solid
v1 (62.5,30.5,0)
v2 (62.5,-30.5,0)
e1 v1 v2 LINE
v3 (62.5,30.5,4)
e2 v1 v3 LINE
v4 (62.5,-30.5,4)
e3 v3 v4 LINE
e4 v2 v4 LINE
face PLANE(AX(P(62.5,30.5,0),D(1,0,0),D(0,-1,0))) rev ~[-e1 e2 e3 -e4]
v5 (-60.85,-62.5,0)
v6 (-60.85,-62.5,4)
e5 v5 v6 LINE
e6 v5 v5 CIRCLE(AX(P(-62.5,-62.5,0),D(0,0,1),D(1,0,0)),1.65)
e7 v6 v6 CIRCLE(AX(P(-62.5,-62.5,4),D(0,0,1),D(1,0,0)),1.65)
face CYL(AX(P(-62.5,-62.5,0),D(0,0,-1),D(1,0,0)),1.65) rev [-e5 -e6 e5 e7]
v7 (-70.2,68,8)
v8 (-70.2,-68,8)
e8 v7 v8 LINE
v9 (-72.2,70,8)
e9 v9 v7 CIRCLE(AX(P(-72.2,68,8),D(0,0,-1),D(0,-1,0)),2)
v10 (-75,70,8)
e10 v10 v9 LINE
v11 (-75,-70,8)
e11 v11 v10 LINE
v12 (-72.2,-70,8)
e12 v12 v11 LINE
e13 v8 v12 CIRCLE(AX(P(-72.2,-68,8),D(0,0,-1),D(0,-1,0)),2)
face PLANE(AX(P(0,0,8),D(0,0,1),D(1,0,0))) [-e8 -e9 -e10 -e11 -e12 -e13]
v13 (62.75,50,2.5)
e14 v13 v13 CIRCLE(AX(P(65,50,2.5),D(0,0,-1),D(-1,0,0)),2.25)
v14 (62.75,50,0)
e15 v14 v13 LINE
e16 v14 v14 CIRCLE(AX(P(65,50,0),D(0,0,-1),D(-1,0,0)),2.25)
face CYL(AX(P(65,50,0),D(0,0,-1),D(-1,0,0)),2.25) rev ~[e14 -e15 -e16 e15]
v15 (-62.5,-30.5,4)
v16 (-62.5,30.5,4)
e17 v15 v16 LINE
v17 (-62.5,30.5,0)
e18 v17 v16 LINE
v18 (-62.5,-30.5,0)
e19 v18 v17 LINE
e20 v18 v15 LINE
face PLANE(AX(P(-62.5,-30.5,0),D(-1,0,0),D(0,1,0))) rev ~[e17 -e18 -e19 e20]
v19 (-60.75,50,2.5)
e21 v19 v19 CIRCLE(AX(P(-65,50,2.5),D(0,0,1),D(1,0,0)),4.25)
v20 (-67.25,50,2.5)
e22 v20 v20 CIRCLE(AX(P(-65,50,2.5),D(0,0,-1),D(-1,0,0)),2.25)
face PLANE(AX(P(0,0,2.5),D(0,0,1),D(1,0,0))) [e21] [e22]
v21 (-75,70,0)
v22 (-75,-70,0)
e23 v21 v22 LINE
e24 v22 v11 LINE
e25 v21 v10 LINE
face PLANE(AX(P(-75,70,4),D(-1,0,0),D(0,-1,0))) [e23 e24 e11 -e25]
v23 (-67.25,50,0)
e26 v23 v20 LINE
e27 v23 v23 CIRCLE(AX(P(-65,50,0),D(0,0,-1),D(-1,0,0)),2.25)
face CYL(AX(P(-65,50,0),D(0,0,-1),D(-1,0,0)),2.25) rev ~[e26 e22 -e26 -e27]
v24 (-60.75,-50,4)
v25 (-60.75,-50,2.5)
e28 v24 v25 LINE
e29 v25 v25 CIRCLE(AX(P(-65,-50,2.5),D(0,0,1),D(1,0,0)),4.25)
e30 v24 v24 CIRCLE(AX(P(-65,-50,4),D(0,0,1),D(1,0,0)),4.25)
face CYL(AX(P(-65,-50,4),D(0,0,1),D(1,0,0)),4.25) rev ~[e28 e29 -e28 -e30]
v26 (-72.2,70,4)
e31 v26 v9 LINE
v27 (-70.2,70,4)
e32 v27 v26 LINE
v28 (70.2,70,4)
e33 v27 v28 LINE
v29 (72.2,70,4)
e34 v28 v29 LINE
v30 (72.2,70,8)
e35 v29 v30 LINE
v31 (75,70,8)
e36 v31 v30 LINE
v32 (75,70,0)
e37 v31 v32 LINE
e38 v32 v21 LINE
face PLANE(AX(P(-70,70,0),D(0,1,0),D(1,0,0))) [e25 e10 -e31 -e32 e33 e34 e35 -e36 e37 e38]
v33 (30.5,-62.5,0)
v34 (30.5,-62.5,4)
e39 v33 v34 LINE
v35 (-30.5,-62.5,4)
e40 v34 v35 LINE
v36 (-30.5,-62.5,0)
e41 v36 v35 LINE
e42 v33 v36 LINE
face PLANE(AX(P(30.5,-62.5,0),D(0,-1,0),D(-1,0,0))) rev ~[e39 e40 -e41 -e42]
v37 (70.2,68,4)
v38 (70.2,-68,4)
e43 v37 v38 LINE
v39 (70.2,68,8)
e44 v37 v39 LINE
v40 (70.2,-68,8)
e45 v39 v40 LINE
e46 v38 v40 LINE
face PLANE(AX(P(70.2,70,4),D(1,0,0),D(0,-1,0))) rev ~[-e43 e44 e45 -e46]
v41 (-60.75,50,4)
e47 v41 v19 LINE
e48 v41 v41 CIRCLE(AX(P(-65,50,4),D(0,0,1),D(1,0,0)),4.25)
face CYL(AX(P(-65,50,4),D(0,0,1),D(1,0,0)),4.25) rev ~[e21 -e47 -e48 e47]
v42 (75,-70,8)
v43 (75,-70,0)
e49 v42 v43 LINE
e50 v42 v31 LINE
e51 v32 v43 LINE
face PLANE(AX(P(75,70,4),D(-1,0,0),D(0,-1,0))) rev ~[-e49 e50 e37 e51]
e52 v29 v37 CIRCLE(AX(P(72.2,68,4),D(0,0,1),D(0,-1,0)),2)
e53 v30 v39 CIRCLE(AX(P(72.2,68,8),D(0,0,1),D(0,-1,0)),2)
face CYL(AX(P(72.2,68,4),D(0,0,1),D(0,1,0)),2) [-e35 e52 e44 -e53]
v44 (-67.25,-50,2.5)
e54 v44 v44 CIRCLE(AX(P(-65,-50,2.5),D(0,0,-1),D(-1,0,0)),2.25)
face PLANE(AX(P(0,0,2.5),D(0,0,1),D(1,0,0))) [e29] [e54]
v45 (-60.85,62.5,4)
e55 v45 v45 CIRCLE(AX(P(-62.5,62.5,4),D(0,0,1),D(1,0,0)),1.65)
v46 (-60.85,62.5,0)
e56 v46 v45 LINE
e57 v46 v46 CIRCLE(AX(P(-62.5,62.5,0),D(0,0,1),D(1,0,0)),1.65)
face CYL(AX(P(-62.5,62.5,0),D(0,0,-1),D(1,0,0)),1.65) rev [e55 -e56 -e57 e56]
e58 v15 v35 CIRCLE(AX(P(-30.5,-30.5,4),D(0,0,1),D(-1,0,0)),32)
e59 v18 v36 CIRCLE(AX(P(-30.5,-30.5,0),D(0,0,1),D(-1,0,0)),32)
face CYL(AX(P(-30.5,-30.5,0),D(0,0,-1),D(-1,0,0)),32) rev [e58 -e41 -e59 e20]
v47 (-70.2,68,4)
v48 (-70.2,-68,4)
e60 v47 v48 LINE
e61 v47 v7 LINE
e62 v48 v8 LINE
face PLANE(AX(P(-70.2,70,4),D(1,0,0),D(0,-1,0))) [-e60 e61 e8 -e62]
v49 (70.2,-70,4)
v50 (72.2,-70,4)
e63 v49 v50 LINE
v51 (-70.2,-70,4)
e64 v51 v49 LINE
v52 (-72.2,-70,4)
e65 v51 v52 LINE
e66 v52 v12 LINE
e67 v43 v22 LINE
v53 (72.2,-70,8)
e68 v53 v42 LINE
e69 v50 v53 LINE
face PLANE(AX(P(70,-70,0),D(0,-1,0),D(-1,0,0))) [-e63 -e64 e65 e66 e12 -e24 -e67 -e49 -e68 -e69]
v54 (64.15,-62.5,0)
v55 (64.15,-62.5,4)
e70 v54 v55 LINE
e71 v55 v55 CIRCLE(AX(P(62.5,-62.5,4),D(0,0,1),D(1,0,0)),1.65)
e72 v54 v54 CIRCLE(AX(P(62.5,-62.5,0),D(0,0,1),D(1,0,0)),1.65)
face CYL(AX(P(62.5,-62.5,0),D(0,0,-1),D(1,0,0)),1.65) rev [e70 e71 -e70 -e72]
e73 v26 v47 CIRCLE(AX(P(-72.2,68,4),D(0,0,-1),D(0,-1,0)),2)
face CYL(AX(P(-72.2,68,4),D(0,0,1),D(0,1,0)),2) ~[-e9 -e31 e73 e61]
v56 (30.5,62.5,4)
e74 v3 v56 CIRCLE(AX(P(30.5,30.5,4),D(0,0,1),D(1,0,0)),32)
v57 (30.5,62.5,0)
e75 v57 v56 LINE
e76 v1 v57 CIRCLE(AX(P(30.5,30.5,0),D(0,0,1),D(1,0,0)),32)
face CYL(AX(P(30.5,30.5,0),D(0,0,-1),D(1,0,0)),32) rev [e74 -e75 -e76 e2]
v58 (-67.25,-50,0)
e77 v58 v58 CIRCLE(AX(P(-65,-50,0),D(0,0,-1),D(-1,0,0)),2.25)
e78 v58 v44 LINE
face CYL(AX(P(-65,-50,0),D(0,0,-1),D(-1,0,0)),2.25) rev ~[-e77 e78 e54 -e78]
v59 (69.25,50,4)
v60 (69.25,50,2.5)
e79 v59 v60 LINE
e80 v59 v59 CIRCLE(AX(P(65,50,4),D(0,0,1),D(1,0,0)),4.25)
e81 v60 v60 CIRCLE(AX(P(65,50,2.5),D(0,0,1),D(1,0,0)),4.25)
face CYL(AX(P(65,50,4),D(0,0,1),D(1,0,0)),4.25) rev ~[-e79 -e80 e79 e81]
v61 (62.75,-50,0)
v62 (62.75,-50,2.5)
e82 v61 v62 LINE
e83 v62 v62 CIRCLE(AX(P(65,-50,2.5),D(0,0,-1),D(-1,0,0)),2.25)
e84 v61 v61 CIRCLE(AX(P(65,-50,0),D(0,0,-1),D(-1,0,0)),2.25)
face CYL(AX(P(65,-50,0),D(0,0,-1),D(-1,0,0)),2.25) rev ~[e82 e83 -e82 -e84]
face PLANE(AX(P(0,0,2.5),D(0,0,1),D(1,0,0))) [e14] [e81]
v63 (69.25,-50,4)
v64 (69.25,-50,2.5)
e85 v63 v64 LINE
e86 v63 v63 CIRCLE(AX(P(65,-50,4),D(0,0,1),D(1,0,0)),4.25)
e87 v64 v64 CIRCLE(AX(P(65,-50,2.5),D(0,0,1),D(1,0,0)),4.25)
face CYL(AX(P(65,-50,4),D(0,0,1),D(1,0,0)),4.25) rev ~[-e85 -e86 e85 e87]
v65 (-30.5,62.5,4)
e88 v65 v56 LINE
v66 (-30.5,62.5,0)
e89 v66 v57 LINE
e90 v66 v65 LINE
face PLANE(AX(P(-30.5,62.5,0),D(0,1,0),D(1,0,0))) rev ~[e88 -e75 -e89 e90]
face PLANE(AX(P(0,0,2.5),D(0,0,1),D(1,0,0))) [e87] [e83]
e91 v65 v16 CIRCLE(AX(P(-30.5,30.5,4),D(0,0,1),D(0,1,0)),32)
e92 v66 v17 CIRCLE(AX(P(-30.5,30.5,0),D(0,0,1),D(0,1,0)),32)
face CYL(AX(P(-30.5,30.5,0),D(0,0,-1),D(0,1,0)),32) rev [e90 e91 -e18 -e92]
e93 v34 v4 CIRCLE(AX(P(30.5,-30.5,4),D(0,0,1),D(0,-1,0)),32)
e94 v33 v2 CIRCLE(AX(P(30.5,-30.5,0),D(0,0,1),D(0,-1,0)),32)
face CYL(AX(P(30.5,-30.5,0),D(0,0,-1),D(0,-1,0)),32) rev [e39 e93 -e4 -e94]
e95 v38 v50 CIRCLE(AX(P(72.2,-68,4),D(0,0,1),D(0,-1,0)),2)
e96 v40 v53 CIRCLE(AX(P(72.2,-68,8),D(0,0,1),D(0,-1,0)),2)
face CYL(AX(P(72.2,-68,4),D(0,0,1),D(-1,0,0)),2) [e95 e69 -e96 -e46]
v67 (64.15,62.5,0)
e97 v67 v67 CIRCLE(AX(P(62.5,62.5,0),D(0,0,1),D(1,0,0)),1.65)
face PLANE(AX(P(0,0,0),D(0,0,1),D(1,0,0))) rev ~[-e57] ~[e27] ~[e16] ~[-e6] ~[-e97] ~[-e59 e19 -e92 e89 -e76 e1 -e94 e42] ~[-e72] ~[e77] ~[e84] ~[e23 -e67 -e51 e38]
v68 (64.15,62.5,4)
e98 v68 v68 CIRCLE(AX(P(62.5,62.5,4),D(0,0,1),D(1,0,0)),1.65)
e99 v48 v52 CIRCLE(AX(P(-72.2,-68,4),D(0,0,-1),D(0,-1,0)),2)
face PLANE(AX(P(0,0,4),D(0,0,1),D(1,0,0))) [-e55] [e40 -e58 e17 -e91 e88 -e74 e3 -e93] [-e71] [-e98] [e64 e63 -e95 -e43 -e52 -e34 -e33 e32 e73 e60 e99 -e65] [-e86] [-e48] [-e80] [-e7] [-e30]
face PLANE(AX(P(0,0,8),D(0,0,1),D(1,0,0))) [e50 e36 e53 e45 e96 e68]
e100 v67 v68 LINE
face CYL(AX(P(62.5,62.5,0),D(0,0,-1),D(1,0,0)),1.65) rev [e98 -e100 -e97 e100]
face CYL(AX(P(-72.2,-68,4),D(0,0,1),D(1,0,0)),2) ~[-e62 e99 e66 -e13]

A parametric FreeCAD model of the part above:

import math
import FreeCAD as App
import Part
import Sketcher
from FreeCAD import Vector
Q = App.Units.Quantity


def edges_at(feature, points):
    """Names of the edges that pass closest to the given points."""
    edges = feature.Shape.Edges
    near = lambda p: min(range(len(edges)), key=lambda i: edges[i].distToShape(Part.Vertex(*p))[0])
    return sorted({f"Edge{near(p) + 1}" for p in points})

doc = App.newDocument("Part")
body = doc.addObject("PartDesign::Body", "Body")

sketch1 = body.newObject("Sketcher::SketchObject", "Sketch")
sketch1.AttachmentSupport = (doc.getObject("XY_Plane"), [""])
sketch1.MapMode = "FlatFace"
sketch1.addGeometry(Part.LineSegment(Vector(70, 70, 0), Vector(-70, 70, 0)), False)
sketch1.addGeometry(Part.LineSegment(Vector(-70, 70, 0), Vector(-70, -70, 0)), False)
sketch1.addGeometry(Part.LineSegment(Vector(-70, -70, 0), Vector(70, -70, 0)), False)
sketch1.addGeometry(Part.LineSegment(Vector(70, -70, 0), Vector(70, 70, 0)), False)
sketch1.addGeometry(Part.Circle(Vector(-62.5, -62.5, 0), Vector(0, 0, 1), 1.6), False)
sketch1.addGeometry(Part.Circle(Vector(62.5, -62.5, 0), Vector(0, 0, 1), 1.6), False)
sketch1.addGeometry(Part.Circle(Vector(-62.5, 62.5, 0), Vector(0, 0, 1), 1.6), False)
sketch1.addGeometry(Part.ArcOfCircle(Part.Circle(Vector(-30.5, 30.5, 0), Vector(0, 0, 1), 32), math.radians(90), math.radians(180)), False)
sketch1.addGeometry(Part.LineSegment(Vector(-30.5, 62.5, 0), Vector(30.5, 62.5, 0)), False)
sketch1.addGeometry(Part.ArcOfCircle(Part.Circle(Vector(30.5, 30.5, 0), Vector(0, 0, 1), 32), math.radians(0), math.radians(90)), False)
sketch1.addGeometry(Part.LineSegment(Vector(62.5, 30.5, 0), Vector(62.5, -30.5, 0)), False)
sketch1.addGeometry(Part.ArcOfCircle(Part.Circle(Vector(30.5, -30.5, 0), Vector(0, 0, 1), 32), math.radians(-90), math.radians(0)), False)
sketch1.addGeometry(Part.LineSegment(Vector(30.5, -62.5, 0), Vector(-30.5, -62.5, 0)), False)
sketch1.addGeometry(Part.ArcOfCircle(Part.Circle(Vector(-30.5, -30.5, 0), Vector(0, 0, 1), 32), math.radians(180), math.radians(270)), False)
sketch1.addGeometry(Part.LineSegment(Vector(-62.5, -30.5, 0), Vector(-62.5, 30.5, 0)), False)
sketch1.addGeometry(Part.Circle(Vector(62.5, 62.5, 0), Vector(0, 0, 1), 1.6), False)
sketch1.addConstraint(Sketcher.Constraint("Coincident", 0, 2, 1, 1))
sketch1.addConstraint(Sketcher.Constraint("Coincident", 1, 2, 2, 1))
sketch1.addConstraint(Sketcher.Constraint("Coincident", 2, 2, 3, 1))
sketch1.addConstraint(Sketcher.Constraint("Coincident", 3, 2, 0, 1))
sketch1.addConstraint(Sketcher.Constraint("Tangent", 7, 1, 8, 1))
sketch1.addConstraint(Sketcher.Constraint("Tangent", 8, 2, 9, 2))
sketch1.addConstraint(Sketcher.Constraint("Tangent", 9, 1, 10, 1))
sketch1.addConstraint(Sketcher.Constraint("Tangent", 10, 2, 11, 2))
sketch1.addConstraint(Sketcher.Constraint("Tangent", 11, 1, 12, 1))
sketch1.addConstraint(Sketcher.Constraint("Tangent", 12, 2, 13, 2))
sketch1.addConstraint(Sketcher.Constraint("Tangent", 13, 1, 14, 1))
sketch1.addConstraint(Sketcher.Constraint("Tangent", 14, 2, 7, 2))
sketch1.addConstraint(Sketcher.Constraint("Horizontal", 0))
sketch1.addConstraint(Sketcher.Constraint("Vertical", 1))
sketch1.addConstraint(Sketcher.Constraint("Horizontal", 2))
sketch1.addConstraint(Sketcher.Constraint("Vertical", 3))
sketch1.addConstraint(Sketcher.Constraint("Horizontal", 8))
sketch1.addConstraint(Sketcher.Constraint("Vertical", 10))
sketch1.addConstraint(Sketcher.Constraint("Horizontal", 12))
sketch1.addConstraint(Sketcher.Constraint("Vertical", 14))
sketch1.addConstraint(Sketcher.Constraint("Equal", 4, 5))
sketch1.addConstraint(Sketcher.Constraint("Equal", 5, 6))
sketch1.addConstraint(Sketcher.Constraint("Equal", 7, 9))
sketch1.addConstraint(Sketcher.Constraint("Equal", 9, 11))
sketch1.addConstraint(Sketcher.Constraint("Equal", 11, 13))
sketch1.addConstraint(Sketcher.Constraint("Equal", 6, 15))
sketch1.addConstraint(Sketcher.Constraint("Symmetric", 5, 3, 6, 3, -1, 1))
sketch1.addConstraint(Sketcher.Constraint("Symmetric", 7, 3, 11, 3, -1, 1))
sketch1.addConstraint(Sketcher.Constraint("Symmetric", 4, 3, 15, 3, -1, 1))
sketch1.addConstraint(Sketcher.Constraint("Symmetric", 0, 2, 2, 2, -1, 1))
sketch1.addConstraint(Sketcher.Constraint("Symmetric", 4, 3, 5, 3, -2))
sketch1.addConstraint(Sketcher.Constraint("Horizontal", 15, 3, 7, 1))
sketch1.addConstraint(Sketcher.Constraint("Vertical", 15, 3, 9, 1))
sketch1.addConstraint(Sketcher.Constraint("Equal", 2, 1))
sketch1.addConstraint(Sketcher.Constraint("Equal", 12, 10))
sketch1.addConstraint(Sketcher.Constraint("Radius", 7, Q("32 mm")))
sketch1.addConstraint(Sketcher.Constraint("Diameter", 4, Q("3.3 mm")))
sketch1.addConstraint(Sketcher.Constraint("DistanceX", 0, 2, 0, 1, Q("140 mm")))
sketch1.addConstraint(Sketcher.Constraint("DistanceX", 4, 3, 5, 3, Q("125 mm")))
pad1 = body.newObject("PartDesign::Pad", "Pad")
pad1.Profile = sketch1
pad1.Length = 4

sketch2 = body.newObject("Sketcher::SketchObject", "Sketch001")
sketch2.AttachmentSupport = (doc.getObject("XY_Plane"), [""])
sketch2.MapMode = "FlatFace"
sketch2.AttachmentOffset = App.Placement(Vector(0, 0, 4), App.Rotation())
sketch2.addGeometry(Part.LineSegment(Vector(-70, -70, 0), Vector(-70, 70, 0)), False)
sketch2.addGeometry(Part.LineSegment(Vector(-70, 70, 0), Vector(-75, 70, 0)), False)
sketch2.addGeometry(Part.LineSegment(Vector(-75, 70, 0), Vector(-75, -70, 0)), False)
sketch2.addGeometry(Part.LineSegment(Vector(-75, -70, 0), Vector(-70, -70, 0)), False)
sketch2.addGeometry(Part.LineSegment(Vector(75, 70, 0), Vector(70, 70, 0)), False)
sketch2.addGeometry(Part.LineSegment(Vector(70, 70, 0), Vector(70, -70, 0)), False)
sketch2.addGeometry(Part.LineSegment(Vector(70, -70, 0), Vector(75, -70, 0)), False)
sketch2.addGeometry(Part.LineSegment(Vector(75, -70, 0), Vector(75, 70, 0)), False)
sketch2.addConstraint(Sketcher.Constraint("Coincident", 0, 2, 1, 1))
sketch2.addConstraint(Sketcher.Constraint("Coincident", 1, 2, 2, 1))
sketch2.addConstraint(Sketcher.Constraint("Coincident", 2, 2, 3, 1))
sketch2.addConstraint(Sketcher.Constraint("Coincident", 3, 2, 0, 1))
sketch2.addConstraint(Sketcher.Constraint("Coincident", 4, 2, 5, 1))
sketch2.addConstraint(Sketcher.Constraint("Coincident", 5, 2, 6, 1))
sketch2.addConstraint(Sketcher.Constraint("Coincident", 6, 2, 7, 1))
sketch2.addConstraint(Sketcher.Constraint("Coincident", 7, 2, 4, 1))
sketch2.addConstraint(Sketcher.Constraint("Vertical", 0))
sketch2.addConstraint(Sketcher.Constraint("Horizontal", 1))
sketch2.addConstraint(Sketcher.Constraint("Vertical", 2))
sketch2.addConstraint(Sketcher.Constraint("Horizontal", 3))
sketch2.addConstraint(Sketcher.Constraint("Horizontal", 4))
sketch2.addConstraint(Sketcher.Constraint("Vertical", 5))
sketch2.addConstraint(Sketcher.Constraint("Horizontal", 6))
sketch2.addConstraint(Sketcher.Constraint("Vertical", 7))
sketch2.addConstraint(Sketcher.Constraint("Symmetric", 3, 2, 4, 2, -1, 1))
sketch2.addConstraint(Sketcher.Constraint("Symmetric", 1, 2, 6, 2, -1, 1))
sketch2.addConstraint(Sketcher.Constraint("Horizontal", 1, 2, 4, 2))
sketch2.addConstraint(Sketcher.Constraint("DistanceX", 2, 2, 6, 2, Q("150 mm")))
sketch2.addConstraint(Sketcher.Constraint("DistanceX", 1, 2, 1, 1, Q("5 mm")))
sketch2.addConstraint(Sketcher.Constraint("DistanceY", 0, 1, 0, 2, Q("140 mm")))
pad2 = body.newObject("PartDesign::Pad", "Pad001")
pad2.Profile = sketch2
pad2.Length = 4
pad2.Reversed = True

sketch3 = body.newObject("Sketcher::SketchObject", "Sketch002")
sketch3.AttachmentSupport = (doc.getObject("XY_Plane"), [""])
sketch3.MapMode = "FlatFace"
sketch3.AttachmentOffset = App.Placement(Vector(0, 0, 4), App.Rotation())
sketch3.addGeometry(Part.LineSegment(Vector(-70.2, 70, 0), Vector(-75, 70, 0)), False)
sketch3.addGeometry(Part.LineSegment(Vector(-75, 70, 0), Vector(-75, -70, 0)), False)
sketch3.addGeometry(Part.LineSegment(Vector(-75, -70, 0), Vector(-70.2, -70, 0)), False)
sketch3.addGeometry(Part.LineSegment(Vector(-70.2, -70, 0), Vector(-70.2, 70, 0)), False)
sketch3.addGeometry(Part.LineSegment(Vector(75, -70, 0), Vector(75, 70, 0)), False)
sketch3.addGeometry(Part.LineSegment(Vector(75, 70, 0), Vector(70.2, 70, 0)), False)
sketch3.addGeometry(Part.LineSegment(Vector(70.2, 70, 0), Vector(70.2, -70, 0)), False)
sketch3.addGeometry(Part.LineSegment(Vector(70.2, -70, 0), Vector(75, -70, 0)), False)
sketch3.addConstraint(Sketcher.Constraint("Coincident", 0, 2, 1, 1))
sketch3.addConstraint(Sketcher.Constraint("Coincident", 1, 2, 2, 1))
sketch3.addConstraint(Sketcher.Constraint("Coincident", 2, 2, 3, 1))
sketch3.addConstraint(Sketcher.Constraint("Coincident", 3, 2, 0, 1))
sketch3.addConstraint(Sketcher.Constraint("Coincident", 4, 2, 5, 1))
sketch3.addConstraint(Sketcher.Constraint("Coincident", 5, 2, 6, 1))
sketch3.addConstraint(Sketcher.Constraint("Coincident", 6, 2, 7, 1))
sketch3.addConstraint(Sketcher.Constraint("Coincident", 7, 2, 4, 1))
sketch3.addConstraint(Sketcher.Constraint("Horizontal", 0))
sketch3.addConstraint(Sketcher.Constraint("Vertical", 1))
sketch3.addConstraint(Sketcher.Constraint("Horizontal", 2))
sketch3.addConstraint(Sketcher.Constraint("Vertical", 3))
sketch3.addConstraint(Sketcher.Constraint("Vertical", 4))
sketch3.addConstraint(Sketcher.Constraint("Horizontal", 5))
sketch3.addConstraint(Sketcher.Constraint("Vertical", 6))
sketch3.addConstraint(Sketcher.Constraint("Horizontal", 7))
sketch3.addConstraint(Sketcher.Constraint("Symmetric", 1, 2, 4, 2, -1, 1))
sketch3.addConstraint(Sketcher.Constraint("Symmetric", 3, 2, 6, 2, -1, 1))
sketch3.addConstraint(Sketcher.Constraint("Horizontal", 3, 2, 4, 2))
sketch3.addConstraint(Sketcher.Constraint("DistanceX", 3, 2, 5, 2, Q("140.4 mm")))
sketch3.addConstraint(Sketcher.Constraint("DistanceY", 1, 2, 1, 1, Q("140 mm")))
sketch3.addConstraint(Sketcher.Constraint("DistanceX", 0, 2, 0, 1, Q("4.8 mm")))
pad3 = body.newObject("PartDesign::Pad", "Pad002")
pad3.Profile = sketch3
pad3.Length = 4

sketch4 = body.newObject("Sketcher::SketchObject", "Sketch003")
sketch4.AttachmentSupport = (doc.getObject("XY_Plane"), [""])
sketch4.MapMode = "FlatFace"
sketch4.addGeometry(Part.Circle(Vector(-65, -50, 0), Vector(0, 0, 1), 2.2), False)
sketch4.addGeometry(Part.Circle(Vector(65, -50, 0), Vector(0, 0, 1), 2.2), False)
sketch4.addGeometry(Part.Circle(Vector(-65, 50, 0), Vector(0, 0, 1), 2.2), False)
sketch4.addGeometry(Part.Circle(Vector(65, 50, 0), Vector(0, 0, 1), 2.2), False)
sketch4.addConstraint(Sketcher.Constraint("Equal", 0, 1))
sketch4.addConstraint(Sketcher.Constraint("Equal", 1, 2))
sketch4.addConstraint(Sketcher.Constraint("Equal", 2, 3))
sketch4.addConstraint(Sketcher.Constraint("Symmetric", 1, 3, 2, 3, -1, 1))
sketch4.addConstraint(Sketcher.Constraint("Symmetric", 0, 3, 3, 3, -1, 1))
sketch4.addConstraint(Sketcher.Constraint("Symmetric", 0, 3, 1, 3, -2))
sketch4.addConstraint(Sketcher.Constraint("Diameter", 0, Q("4.5 mm")))
sketch4.addConstraint(Sketcher.Constraint("DistanceY", 0, 3, -1, 1, Q("50 mm")))
sketch4.addConstraint(Sketcher.Constraint("DistanceX", 0, 3, -1, 1, Q("65 mm")))
pocket1 = body.newObject("PartDesign::Pocket", "Pocket")
pocket1.Profile = sketch4
pocket1.Type = "ThroughAll"
pocket1.Reversed = True

sketch5 = body.newObject("Sketcher::SketchObject", "Sketch004")
sketch5.AttachmentSupport = (doc.getObject("XY_Plane"), [""])
sketch5.MapMode = "FlatFace"
sketch5.AttachmentOffset = App.Placement(Vector(0, 0, 4), App.Rotation())
sketch5.addGeometry(Part.Circle(Vector(-65, -50, 0), Vector(0, 0, 1), 4.2), False)
sketch5.addGeometry(Part.Circle(Vector(-65, 50, 0), Vector(0, 0, 1), 4.2), False)
sketch5.addGeometry(Part.Circle(Vector(65, -50, 0), Vector(0, 0, 1), 4.2), False)
sketch5.addGeometry(Part.Circle(Vector(65, 50, 0), Vector(0, 0, 1), 4.2), False)
sketch5.addConstraint(Sketcher.Constraint("Equal", 0, 1))
sketch5.addConstraint(Sketcher.Constraint("Equal", 1, 2))
sketch5.addConstraint(Sketcher.Constraint("Equal", 2, 3))
sketch5.addConstraint(Sketcher.Constraint("Symmetric", 1, 3, 2, 3, -1, 1))
sketch5.addConstraint(Sketcher.Constraint("Symmetric", 0, 3, 3, 3, -1, 1))
sketch5.addConstraint(Sketcher.Constraint("Symmetric", 0, 3, 2, 3, -2))
sketch5.addConstraint(Sketcher.Constraint("Diameter", 0, Q("8.5 mm")))
sketch5.addConstraint(Sketcher.Constraint("DistanceX", 0, 3, -1, 1, Q("65 mm")))
sketch5.addConstraint(Sketcher.Constraint("DistanceY", 0, 3, -1, 1, Q("50 mm")))
pocket2 = body.newObject("PartDesign::Pocket", "Pocket001")
pocket2.Profile = sketch5
pocket2.Length = 1.5
doc.recompute()

fillet = body.newObject("PartDesign::Fillet", "Fillet")
fillet.Base = (pocket2, edges_at(pocket2, [
    (70.2, 70, 6),
    (70.2, -70, 6),
    (-70.2, -70, 6),
    (-70.2, 70, 6),
]))
fillet.Radius = 2

doc.recompute()
